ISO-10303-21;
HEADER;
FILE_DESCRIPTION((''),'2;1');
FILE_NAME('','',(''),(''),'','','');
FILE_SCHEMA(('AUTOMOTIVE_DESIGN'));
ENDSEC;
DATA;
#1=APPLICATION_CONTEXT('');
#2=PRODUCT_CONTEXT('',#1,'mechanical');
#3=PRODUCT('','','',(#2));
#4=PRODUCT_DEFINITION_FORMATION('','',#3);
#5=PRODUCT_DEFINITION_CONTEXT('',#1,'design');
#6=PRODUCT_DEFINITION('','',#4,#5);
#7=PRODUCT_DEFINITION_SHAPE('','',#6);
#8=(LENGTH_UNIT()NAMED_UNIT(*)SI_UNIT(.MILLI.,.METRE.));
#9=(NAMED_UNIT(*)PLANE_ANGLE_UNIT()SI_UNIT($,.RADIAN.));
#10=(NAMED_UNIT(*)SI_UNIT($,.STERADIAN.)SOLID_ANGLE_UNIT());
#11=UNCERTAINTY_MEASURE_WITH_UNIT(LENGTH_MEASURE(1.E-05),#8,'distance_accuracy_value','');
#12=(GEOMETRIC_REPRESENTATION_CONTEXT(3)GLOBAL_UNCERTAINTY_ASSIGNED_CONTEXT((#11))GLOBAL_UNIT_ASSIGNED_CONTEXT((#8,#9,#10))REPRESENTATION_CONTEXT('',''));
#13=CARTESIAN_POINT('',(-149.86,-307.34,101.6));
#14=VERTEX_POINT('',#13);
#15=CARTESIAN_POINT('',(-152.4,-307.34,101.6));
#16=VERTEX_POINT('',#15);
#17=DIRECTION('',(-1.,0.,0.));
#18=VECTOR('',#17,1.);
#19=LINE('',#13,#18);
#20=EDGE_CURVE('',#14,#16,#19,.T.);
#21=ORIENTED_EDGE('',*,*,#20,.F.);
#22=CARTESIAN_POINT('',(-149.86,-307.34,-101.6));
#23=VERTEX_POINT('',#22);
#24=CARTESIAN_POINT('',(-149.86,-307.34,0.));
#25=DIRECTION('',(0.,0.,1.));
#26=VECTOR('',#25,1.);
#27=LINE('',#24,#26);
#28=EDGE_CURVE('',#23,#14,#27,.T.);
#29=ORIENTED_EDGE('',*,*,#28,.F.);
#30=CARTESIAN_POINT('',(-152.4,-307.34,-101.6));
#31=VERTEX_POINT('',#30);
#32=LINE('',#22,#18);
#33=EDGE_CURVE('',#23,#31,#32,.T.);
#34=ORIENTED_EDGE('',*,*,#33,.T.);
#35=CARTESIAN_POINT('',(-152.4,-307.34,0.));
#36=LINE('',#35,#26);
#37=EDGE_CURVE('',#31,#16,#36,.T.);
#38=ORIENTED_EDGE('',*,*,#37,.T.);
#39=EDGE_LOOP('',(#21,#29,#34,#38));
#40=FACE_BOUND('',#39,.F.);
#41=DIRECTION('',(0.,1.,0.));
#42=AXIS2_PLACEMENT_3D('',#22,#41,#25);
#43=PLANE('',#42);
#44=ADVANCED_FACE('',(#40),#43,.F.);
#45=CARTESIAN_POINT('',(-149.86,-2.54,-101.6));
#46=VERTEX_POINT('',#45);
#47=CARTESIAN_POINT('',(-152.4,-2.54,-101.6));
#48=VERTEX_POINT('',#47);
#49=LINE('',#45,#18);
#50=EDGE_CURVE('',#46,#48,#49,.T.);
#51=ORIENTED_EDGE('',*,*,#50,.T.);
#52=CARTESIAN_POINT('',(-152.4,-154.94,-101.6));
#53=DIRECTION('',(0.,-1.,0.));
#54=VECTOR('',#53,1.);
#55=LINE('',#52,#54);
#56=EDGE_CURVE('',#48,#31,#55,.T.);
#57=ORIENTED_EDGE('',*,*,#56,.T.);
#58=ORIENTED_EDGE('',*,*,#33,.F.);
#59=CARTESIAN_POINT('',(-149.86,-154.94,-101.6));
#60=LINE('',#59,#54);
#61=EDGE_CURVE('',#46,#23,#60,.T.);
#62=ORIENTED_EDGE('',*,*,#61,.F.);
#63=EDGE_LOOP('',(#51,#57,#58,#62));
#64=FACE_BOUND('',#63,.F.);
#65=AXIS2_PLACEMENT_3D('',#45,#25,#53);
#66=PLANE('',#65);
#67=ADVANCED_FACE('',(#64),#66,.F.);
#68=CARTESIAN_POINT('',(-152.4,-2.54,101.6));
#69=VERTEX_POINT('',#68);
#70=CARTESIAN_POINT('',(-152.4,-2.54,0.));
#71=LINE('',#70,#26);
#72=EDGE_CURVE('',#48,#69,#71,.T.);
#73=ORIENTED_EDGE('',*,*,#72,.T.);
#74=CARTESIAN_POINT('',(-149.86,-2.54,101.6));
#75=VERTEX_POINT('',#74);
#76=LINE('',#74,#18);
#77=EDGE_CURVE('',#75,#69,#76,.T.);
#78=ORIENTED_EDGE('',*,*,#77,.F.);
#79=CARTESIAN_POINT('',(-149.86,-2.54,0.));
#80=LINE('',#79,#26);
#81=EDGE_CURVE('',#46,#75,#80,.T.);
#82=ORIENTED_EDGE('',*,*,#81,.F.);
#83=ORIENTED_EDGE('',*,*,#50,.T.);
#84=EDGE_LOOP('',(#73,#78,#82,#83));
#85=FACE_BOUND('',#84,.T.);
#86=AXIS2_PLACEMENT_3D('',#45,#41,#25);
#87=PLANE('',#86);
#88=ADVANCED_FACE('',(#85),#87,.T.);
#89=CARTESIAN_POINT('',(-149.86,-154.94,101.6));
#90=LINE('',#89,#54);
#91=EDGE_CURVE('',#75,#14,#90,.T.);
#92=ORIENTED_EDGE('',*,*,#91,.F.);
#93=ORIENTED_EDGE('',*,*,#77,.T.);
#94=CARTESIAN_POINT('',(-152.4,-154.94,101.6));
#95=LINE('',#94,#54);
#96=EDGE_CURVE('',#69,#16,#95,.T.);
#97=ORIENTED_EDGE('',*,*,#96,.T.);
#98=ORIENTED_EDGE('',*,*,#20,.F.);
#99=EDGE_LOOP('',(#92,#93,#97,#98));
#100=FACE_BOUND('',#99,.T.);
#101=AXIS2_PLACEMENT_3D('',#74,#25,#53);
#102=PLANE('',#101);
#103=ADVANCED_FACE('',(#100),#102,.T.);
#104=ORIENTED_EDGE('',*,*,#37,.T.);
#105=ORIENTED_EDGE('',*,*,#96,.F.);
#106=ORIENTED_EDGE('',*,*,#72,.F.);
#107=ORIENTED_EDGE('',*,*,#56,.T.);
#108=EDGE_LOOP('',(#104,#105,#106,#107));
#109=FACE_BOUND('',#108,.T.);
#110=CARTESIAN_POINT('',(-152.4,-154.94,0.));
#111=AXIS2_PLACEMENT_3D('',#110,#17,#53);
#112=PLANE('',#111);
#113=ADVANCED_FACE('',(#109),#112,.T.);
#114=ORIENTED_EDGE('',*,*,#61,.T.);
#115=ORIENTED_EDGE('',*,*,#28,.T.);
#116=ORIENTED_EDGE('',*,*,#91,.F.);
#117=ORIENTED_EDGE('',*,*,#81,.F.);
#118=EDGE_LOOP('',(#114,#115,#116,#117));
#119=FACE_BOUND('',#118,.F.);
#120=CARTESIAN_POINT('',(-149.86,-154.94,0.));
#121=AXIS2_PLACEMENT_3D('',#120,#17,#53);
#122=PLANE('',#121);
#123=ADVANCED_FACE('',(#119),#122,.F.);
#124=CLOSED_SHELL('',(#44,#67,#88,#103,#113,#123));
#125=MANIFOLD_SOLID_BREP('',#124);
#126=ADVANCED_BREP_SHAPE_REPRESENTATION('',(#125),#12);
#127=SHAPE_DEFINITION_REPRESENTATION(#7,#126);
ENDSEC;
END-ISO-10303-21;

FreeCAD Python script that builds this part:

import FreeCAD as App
import Part
import Sketcher

V = App.Vector
Q = App.Units.Quantity


def add_polygon(sketch, points):
    """Adds a closed chain of lines whose ends are joined by coincident constraints."""
    first, n = sketch.GeometryCount, len(points)
    for a, b in zip(points, points[1:] + points[:1]):
        sketch.addGeometry(Part.LineSegment(App.Vector(*a, 0), App.Vector(*b, 0)), False)
    for i in range(n):
        sketch.addConstraint(Sketcher.Constraint("Coincident", first + i, 2, first + (i + 1) % n, 1))

doc = App.newDocument("Part")
body = doc.addObject("PartDesign::Body", "Body")

# Sketch on XZ plane
sketch1 = doc.addObject("Sketcher::SketchObject", "Sketch")
body.addObject(sketch1)
sketch1.AttachmentSupport = (doc.XZ_Plane, [""])
sketch1.MapMode = "FlatFace"
add_polygon(sketch1, [(-152.4, 101.6), (-152.4, -101.6), (152.4, -101.6), (152.4, 101.6)])  # lines 0-3
sketch1.addConstraint([
    Sketcher.Constraint("Vertical", 0),
    Sketcher.Constraint("Horizontal", 1),
    Sketcher.Constraint("Vertical", 2),
    Sketcher.Constraint("Horizontal", 3),
    Sketcher.Constraint("Symmetric", 0, 2, 2, 2, -1, 1),
    Sketcher.Constraint("DistanceX", 1, 1, 1, 2, Q("12 in")),
    Sketcher.Constraint("DistanceY", 0, 2, 0, 1, Q("8 in")),
])
pad1 = doc.addObject("PartDesign::Pad", "Pad")
body.addObject(pad1)
pad1.Profile = sketch1
pad1.Length = Q("0.1 in")
body2 = doc.addObject("PartDesign::Body", "Body001")
doc.recompute()

body.Placement = App.Placement(V(-149.86, -154.94, 0), App.Rotation(V(0, 0, -1), 90))
boolean = doc.addObject("PartDesign::Boolean", "Boolean")
body2.addObject(boolean)
boolean.Type = "Fuse"
boolean.addObjects([body])

doc.recompute()
